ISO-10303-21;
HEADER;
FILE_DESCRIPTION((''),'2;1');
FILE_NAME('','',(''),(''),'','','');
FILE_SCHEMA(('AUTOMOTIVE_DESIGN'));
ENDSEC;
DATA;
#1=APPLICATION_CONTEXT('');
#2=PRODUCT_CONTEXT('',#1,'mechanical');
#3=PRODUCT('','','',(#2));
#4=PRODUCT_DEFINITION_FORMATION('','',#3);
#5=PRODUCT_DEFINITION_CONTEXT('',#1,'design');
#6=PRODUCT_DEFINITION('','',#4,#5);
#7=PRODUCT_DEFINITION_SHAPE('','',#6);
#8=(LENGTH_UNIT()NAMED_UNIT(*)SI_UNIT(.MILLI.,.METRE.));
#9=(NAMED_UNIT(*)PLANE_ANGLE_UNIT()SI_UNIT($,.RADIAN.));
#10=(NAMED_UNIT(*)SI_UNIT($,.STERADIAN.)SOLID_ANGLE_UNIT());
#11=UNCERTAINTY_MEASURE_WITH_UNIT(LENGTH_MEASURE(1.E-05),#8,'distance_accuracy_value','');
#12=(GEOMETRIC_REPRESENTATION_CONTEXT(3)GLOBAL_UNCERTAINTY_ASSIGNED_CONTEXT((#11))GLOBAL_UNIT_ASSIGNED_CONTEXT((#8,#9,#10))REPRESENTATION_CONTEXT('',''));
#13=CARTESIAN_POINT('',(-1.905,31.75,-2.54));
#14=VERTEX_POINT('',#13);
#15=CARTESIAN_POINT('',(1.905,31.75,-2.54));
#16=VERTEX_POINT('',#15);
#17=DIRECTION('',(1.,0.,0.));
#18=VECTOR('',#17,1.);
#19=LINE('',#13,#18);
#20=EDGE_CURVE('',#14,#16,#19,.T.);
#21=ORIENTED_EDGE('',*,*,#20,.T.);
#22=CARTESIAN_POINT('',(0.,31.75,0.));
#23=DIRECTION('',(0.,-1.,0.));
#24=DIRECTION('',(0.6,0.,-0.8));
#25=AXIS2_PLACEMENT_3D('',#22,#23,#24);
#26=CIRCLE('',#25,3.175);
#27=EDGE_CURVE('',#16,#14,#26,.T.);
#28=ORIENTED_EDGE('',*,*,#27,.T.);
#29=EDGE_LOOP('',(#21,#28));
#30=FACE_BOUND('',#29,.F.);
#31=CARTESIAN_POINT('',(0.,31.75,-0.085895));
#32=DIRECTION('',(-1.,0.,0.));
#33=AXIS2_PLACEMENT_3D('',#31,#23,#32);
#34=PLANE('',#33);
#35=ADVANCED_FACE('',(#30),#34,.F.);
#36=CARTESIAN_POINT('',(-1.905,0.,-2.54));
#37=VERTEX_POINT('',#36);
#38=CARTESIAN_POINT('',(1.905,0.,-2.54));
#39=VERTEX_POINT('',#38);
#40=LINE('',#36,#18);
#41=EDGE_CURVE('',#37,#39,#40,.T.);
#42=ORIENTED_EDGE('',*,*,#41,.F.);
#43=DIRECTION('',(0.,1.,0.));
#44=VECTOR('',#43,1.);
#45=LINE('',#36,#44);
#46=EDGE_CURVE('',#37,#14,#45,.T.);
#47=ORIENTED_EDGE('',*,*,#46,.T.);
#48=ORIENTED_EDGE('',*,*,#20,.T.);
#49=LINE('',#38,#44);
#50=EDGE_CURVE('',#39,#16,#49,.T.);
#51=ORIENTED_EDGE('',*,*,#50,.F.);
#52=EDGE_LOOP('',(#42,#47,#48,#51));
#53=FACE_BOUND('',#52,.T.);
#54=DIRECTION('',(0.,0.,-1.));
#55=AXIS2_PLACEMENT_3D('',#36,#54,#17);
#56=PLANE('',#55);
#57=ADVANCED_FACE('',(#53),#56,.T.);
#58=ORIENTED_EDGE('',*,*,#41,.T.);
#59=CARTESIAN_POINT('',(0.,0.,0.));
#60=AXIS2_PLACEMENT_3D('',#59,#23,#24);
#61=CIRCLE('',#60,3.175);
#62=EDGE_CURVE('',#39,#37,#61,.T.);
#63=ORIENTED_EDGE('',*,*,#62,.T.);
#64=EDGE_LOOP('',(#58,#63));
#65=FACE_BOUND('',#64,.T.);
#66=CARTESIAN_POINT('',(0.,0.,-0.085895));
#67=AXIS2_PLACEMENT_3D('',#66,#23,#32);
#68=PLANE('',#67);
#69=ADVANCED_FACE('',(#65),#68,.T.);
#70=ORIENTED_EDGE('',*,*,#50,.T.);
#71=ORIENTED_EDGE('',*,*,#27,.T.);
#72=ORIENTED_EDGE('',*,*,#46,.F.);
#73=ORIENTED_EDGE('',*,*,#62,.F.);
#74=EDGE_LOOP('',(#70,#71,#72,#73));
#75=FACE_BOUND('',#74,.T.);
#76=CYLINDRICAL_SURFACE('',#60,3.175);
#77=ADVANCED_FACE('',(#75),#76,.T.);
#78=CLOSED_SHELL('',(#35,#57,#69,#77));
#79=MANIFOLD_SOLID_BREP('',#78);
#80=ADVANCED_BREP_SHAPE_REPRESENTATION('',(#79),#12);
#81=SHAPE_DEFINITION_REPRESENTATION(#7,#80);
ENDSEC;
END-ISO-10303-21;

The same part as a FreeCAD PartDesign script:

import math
import FreeCAD as App
import Part
import Sketcher
from FreeCAD import Vector
Q = App.Units.Quantity

doc = App.newDocument("Part")
body = doc.addObject("PartDesign::Body", "Body")

# Sketch on XZ plane
sketch1 = body.newObject("Sketcher::SketchObject", "Sketch")
sketch1.AttachmentSupport = (doc.getObject("XZ_Plane"), [""])
sketch1.MapMode = "FlatFace"
sketch1.addGeometry(Part.LineSegment(Vector(1.905, -2.54, 0), Vector(-1.905, -2.54, 0)), False)
sketch1.addGeometry(Part.ArcOfCircle(Part.Circle(Vector(0, 0, 0), Vector(0, 0, 1), 3.175), math.radians(-53.130102), math.radians(233.130102)), False)
sketch1.addConstraint(Sketcher.Constraint("Coincident", 0, 1, 1, 1))
sketch1.addConstraint(Sketcher.Constraint("Coincident", 1, 2, 0, 2))
sketch1.addConstraint(Sketcher.Constraint("Horizontal", 0))
sketch1.addConstraint(Sketcher.Constraint("Coincident", 1, 3, -1, 1))
sketch1.addConstraint(Sketcher.Constraint("Radius", 1, Q("0.125 in")))
sketch1.addConstraint(Sketcher.Constraint("DistanceX", 0, 2, 0, 1, Q("0.15 in")))
pad1 = body.newObject("PartDesign::Pad", "Pad")
pad1.Profile = sketch1
pad1.Length = Q("1.25 in")
pad1.Reversed = True

doc.recompute()
